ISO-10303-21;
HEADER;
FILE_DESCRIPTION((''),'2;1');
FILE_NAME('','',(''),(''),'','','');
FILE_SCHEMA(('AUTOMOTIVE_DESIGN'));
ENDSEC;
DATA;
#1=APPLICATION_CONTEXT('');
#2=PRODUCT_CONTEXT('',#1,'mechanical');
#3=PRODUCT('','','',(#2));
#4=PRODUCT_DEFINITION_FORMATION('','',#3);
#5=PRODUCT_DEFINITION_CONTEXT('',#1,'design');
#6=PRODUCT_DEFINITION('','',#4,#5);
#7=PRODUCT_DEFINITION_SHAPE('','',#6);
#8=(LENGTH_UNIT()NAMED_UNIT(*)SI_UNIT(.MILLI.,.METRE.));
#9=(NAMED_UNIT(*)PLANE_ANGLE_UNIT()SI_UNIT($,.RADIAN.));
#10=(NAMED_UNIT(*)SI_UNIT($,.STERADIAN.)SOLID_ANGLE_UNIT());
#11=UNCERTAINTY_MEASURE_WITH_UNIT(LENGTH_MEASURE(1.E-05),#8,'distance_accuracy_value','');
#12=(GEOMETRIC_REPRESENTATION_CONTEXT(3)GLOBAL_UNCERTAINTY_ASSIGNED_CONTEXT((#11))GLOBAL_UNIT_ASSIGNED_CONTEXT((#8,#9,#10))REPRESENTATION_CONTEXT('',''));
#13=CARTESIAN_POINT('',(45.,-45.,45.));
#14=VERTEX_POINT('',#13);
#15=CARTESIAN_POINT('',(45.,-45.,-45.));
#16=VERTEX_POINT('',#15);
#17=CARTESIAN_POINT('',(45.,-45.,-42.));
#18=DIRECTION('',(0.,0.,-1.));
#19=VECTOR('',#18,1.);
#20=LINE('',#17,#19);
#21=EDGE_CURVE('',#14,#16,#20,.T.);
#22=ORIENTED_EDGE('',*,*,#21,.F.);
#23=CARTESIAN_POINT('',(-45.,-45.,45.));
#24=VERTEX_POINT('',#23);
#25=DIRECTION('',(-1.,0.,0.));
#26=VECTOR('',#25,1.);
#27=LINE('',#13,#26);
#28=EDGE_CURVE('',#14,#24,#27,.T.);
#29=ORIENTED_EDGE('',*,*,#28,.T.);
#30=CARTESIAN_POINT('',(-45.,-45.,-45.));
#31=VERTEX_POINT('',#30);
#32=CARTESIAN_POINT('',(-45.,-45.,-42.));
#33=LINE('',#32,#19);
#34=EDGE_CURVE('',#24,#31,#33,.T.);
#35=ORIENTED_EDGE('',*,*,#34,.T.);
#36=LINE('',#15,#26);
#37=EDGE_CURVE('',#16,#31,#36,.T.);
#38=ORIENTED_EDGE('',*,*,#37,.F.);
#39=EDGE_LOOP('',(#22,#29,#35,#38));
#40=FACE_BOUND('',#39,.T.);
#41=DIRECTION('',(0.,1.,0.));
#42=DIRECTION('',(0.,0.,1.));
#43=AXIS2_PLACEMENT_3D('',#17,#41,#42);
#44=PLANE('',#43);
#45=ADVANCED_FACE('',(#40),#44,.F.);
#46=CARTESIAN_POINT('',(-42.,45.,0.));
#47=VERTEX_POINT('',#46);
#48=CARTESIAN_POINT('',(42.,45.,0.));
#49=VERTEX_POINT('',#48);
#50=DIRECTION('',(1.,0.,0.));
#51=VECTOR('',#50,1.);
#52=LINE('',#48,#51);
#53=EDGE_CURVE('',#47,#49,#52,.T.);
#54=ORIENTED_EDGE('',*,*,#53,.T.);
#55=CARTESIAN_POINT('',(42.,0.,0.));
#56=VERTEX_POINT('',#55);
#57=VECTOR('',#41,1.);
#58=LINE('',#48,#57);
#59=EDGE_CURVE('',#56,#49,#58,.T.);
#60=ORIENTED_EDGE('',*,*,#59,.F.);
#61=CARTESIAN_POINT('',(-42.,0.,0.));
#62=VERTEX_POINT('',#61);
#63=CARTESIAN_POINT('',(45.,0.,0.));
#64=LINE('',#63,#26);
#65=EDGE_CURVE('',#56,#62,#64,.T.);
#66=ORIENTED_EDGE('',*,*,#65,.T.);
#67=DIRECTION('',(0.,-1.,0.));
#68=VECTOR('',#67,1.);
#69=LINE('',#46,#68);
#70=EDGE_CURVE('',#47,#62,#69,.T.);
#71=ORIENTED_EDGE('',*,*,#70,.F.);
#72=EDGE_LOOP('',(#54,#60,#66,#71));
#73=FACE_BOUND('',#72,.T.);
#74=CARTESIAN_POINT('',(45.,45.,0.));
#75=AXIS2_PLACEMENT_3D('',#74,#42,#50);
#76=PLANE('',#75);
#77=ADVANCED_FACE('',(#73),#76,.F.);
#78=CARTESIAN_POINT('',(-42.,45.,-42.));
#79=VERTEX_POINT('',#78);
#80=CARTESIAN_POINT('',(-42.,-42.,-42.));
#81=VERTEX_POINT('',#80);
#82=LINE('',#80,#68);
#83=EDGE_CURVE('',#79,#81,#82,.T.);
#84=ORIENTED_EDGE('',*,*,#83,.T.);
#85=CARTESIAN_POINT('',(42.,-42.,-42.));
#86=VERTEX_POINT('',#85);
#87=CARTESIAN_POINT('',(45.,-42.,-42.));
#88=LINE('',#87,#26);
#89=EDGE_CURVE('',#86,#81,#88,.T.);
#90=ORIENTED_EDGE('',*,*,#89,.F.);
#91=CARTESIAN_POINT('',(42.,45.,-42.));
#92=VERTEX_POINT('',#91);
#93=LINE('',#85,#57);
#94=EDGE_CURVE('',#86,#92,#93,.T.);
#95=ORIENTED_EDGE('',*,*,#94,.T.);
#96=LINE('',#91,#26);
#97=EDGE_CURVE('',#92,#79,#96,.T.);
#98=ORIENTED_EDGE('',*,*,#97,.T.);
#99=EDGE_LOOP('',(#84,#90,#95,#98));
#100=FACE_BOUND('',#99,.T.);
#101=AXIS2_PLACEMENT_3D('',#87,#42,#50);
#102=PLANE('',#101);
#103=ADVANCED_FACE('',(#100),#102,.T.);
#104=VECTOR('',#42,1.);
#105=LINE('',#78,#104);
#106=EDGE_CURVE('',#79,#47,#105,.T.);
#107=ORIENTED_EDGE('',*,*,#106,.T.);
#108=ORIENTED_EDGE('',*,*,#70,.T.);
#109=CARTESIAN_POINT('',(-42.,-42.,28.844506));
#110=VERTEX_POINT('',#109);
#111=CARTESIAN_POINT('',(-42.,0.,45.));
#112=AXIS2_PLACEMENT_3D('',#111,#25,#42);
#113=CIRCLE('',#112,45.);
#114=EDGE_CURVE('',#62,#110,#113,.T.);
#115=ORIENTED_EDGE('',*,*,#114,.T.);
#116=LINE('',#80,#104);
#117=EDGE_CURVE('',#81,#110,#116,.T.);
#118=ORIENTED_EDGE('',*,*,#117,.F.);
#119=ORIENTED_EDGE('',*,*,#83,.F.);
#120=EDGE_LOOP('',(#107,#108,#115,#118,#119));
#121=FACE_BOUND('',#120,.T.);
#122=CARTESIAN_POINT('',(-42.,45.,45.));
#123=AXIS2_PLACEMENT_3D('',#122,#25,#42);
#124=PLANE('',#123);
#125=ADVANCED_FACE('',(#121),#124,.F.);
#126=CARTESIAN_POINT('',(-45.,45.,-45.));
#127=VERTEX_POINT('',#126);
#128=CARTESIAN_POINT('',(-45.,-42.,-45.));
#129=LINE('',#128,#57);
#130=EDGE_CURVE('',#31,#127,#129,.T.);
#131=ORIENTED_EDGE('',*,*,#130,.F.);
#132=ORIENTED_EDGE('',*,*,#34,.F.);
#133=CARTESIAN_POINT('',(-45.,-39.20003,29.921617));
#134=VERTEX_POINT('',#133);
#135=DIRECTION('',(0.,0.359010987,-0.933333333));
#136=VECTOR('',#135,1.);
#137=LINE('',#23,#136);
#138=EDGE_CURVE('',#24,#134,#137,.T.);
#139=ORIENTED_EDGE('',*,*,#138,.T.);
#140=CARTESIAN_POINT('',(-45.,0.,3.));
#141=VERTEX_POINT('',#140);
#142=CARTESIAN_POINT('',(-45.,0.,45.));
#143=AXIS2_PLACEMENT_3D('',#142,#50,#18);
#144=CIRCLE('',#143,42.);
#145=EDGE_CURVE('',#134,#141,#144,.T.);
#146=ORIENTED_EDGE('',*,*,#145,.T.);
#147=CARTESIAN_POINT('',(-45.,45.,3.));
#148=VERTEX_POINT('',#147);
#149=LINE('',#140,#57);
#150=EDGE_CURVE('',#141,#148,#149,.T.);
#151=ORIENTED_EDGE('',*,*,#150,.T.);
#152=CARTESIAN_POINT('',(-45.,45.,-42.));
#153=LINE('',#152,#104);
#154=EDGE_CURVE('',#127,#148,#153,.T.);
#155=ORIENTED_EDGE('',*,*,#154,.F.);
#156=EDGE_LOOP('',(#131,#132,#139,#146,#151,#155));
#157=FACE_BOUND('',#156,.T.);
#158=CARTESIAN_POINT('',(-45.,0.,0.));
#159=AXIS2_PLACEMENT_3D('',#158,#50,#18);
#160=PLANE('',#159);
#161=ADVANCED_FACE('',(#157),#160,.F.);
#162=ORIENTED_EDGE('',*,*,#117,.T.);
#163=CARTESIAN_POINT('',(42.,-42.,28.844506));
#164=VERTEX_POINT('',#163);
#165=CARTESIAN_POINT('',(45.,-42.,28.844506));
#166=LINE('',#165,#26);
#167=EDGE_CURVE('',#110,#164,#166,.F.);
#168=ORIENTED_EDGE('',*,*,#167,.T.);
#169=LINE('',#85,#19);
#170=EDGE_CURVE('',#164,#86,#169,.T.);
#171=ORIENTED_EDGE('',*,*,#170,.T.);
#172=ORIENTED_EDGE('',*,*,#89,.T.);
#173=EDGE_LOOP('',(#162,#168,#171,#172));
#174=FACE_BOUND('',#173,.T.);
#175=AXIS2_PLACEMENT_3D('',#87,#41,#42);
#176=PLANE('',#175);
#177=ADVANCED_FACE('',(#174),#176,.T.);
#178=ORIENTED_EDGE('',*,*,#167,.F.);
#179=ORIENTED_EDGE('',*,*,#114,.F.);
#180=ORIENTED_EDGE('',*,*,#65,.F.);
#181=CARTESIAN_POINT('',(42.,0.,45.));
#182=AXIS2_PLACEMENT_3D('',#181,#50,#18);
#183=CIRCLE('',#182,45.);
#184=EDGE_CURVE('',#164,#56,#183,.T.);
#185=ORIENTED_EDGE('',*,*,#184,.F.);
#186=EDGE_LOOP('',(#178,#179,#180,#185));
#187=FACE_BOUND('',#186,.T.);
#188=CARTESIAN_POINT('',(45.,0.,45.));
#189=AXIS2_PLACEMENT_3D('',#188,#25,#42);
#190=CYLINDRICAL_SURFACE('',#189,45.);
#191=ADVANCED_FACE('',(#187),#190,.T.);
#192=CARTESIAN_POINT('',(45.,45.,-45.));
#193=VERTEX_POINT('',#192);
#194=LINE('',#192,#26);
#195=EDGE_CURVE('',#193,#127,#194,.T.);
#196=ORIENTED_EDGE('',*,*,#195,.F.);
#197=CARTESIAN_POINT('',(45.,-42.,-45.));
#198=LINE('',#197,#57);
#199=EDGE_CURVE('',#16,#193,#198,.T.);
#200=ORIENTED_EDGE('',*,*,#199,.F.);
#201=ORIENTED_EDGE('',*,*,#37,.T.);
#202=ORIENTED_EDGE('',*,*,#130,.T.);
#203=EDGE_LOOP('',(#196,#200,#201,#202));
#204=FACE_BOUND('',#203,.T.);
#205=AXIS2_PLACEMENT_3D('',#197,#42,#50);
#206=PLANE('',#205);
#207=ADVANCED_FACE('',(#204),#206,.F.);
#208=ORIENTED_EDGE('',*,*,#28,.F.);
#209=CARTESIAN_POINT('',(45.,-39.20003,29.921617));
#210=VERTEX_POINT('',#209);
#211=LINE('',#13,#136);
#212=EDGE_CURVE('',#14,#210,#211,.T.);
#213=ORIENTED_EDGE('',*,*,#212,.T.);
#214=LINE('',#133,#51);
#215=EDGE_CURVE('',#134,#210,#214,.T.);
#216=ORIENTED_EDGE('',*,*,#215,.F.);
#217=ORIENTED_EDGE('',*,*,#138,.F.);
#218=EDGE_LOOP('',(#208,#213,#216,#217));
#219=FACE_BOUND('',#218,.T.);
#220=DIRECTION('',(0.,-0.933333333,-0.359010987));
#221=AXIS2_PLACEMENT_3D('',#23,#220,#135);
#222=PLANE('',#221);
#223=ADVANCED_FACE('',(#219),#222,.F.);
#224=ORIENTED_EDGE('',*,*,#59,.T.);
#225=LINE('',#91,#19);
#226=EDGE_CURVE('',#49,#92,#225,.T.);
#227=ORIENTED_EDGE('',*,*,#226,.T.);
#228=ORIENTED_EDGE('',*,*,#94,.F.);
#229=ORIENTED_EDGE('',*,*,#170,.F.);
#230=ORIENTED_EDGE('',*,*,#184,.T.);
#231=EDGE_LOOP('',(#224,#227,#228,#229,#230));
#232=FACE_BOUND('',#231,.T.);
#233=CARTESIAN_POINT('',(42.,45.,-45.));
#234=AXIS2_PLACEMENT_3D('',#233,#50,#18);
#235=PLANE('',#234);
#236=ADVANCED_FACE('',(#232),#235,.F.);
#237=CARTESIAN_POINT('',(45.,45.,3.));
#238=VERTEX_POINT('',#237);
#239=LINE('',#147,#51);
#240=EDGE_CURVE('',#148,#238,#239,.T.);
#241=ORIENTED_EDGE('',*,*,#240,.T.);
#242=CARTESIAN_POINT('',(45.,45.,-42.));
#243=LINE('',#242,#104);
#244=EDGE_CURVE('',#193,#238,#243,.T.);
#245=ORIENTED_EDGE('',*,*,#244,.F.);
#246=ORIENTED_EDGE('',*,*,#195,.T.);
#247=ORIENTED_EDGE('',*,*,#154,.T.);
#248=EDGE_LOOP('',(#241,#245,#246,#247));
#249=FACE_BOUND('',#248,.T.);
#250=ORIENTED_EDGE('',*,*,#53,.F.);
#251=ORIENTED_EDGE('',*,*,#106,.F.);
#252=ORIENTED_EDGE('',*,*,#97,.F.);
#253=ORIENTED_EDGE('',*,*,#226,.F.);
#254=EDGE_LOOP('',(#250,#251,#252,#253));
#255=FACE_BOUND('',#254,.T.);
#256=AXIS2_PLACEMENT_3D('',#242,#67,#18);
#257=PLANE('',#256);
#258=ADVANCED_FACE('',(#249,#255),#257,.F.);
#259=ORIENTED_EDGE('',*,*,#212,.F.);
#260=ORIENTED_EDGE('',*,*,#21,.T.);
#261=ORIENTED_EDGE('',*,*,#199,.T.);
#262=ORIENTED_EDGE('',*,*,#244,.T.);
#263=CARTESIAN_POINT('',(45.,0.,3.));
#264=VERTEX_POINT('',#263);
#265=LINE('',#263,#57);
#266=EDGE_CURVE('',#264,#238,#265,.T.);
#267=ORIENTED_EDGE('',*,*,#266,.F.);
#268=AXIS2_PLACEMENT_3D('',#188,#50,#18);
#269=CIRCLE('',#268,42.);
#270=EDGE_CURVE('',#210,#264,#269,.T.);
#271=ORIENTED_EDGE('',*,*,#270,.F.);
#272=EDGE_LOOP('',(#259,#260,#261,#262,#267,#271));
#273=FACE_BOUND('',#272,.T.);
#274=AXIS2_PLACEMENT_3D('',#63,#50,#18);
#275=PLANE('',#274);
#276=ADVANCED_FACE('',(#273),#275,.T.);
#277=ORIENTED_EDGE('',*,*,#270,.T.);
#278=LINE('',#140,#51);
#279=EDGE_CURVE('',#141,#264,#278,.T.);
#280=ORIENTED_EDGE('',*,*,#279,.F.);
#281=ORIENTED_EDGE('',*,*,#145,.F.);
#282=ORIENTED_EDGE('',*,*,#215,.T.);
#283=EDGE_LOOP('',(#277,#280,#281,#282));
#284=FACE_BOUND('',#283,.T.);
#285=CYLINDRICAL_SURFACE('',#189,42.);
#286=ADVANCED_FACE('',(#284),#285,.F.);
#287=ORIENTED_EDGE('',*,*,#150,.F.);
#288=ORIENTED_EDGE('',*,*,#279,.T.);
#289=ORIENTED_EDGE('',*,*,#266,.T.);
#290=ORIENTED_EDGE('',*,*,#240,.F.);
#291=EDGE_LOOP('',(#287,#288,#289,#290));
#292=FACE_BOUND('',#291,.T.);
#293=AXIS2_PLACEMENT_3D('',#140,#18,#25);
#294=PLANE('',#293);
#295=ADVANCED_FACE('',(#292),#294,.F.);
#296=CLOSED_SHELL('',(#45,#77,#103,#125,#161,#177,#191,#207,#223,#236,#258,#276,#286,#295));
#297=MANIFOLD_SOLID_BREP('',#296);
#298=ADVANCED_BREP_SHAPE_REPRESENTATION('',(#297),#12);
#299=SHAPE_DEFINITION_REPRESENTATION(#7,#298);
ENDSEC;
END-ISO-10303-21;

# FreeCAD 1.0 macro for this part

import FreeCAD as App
import Part
import Sketcher

V = App.Vector
Q = App.Units.Quantity


def add_polygon(sketch, points):
    """Adds a closed chain of lines whose ends are joined by coincident constraints."""
    first, n = sketch.GeometryCount, len(points)
    for a, b in zip(points, points[1:] + points[:1]):
        sketch.addGeometry(Part.LineSegment(App.Vector(*a, 0), App.Vector(*b, 0)), False)
    for i in range(n):
        sketch.addConstraint(Sketcher.Constraint("Coincident", first + i, 2, first + (i + 1) % n, 1))

doc = App.newDocument("Part")
body = doc.addObject("PartDesign::Body", "Body")

# Sketch on YZ plane
sketch1 = doc.addObject("Sketcher::SketchObject", "Sketch")
body.addObject(sketch1)
sketch1.AttachmentSupport = (doc.YZ_Plane, [""])
sketch1.MapMode = "FlatFace"
add_polygon(sketch1, [(45, 45), (-45, 45), (-45, -45), (45, -45)])  # lines 0-3
add_polygon(sketch1, [(-42, -42), (-42, 42), (42, 42), (42, -42)])  # lines 4-7
sketch1.addConstraint(Sketcher.Constraint("Horizontal", 0))
sketch1.addConstraint(Sketcher.Constraint("Vertical", 1))
sketch1.addConstraint(Sketcher.Constraint("Horizontal", 2))
sketch1.addConstraint(Sketcher.Constraint("Vertical", 3))
sketch1.addConstraint(Sketcher.Constraint("Vertical", 4))
sketch1.addConstraint(Sketcher.Constraint("Horizontal", 5))
sketch1.addConstraint(Sketcher.Constraint("Vertical", 6))
sketch1.addConstraint(Sketcher.Constraint("Horizontal", 7))
sketch1.addConstraint(Sketcher.Constraint("Symmetric", 0, 2, 2, 2, -1, 1))
sketch1.addConstraint(Sketcher.Constraint("Symmetric", 4, 2, 6, 2, -1, 1))
sketch1.addConstraint(Sketcher.Constraint("Equal", 2, 1))
sketch1.addConstraint(Sketcher.Constraint("Equal", 7, 4))
sketch1.addConstraint(Sketcher.Constraint("DistanceX", 0, 2, 0, 1, Q("90 mm")))
sketch1.addConstraint(Sketcher.Constraint("DistanceX", 5, 1, 5, 2, Q("84 mm")))
pad1 = doc.addObject("PartDesign::Pad", "Pad")
body.addObject(pad1)
pad1.Profile = sketch1
pad1.Length = 90
pad1.Midplane = True

# Sketch on YZ plane
sketch2 = doc.addObject("Sketcher::SketchObject", "Sketch001")
body.addObject(sketch2)
sketch2.AttachmentSupport = (doc.YZ_Plane, [""])
sketch2.MapMode = "FlatFace"
add_polygon(sketch2, [(42, 45), (-42, 45), (-42, 42), (42, 42)])  # lines 0-3
sketch2.addConstraint(Sketcher.Constraint("Horizontal", 0))
sketch2.addConstraint(Sketcher.Constraint("Vertical", 1))
sketch2.addConstraint(Sketcher.Constraint("Horizontal", 2))
sketch2.addConstraint(Sketcher.Constraint("Vertical", 3))
sketch2.addConstraint(Sketcher.Constraint("DistanceX", 0, 2, 0, 1, Q("84 mm")))
sketch2.addConstraint(Sketcher.Constraint("DistanceY", 1, 2, 1, 1, Q("3 mm")))
sketch2.addConstraint(Sketcher.Constraint("DistanceX", 0, 2, -1, 1, Q("42 mm")))
sketch2.addConstraint(Sketcher.Constraint("DistanceY", -1, 1, 0, 2, Q("45 mm")))
pocket1 = doc.addObject("PartDesign::Pocket", "Pocket")
body.addObject(pocket1)
pocket1.Profile = sketch2
pocket1.Type = "ThroughAll"
pocket1.Midplane = True

# Sketch on YZ plane
sketch3 = doc.addObject("Sketcher::SketchObject", "Sketch002")
body.addObject(sketch3)
sketch3.AttachmentSupport = (doc.YZ_Plane, [""])
sketch3.MapMode = "FlatFace"
sketch3.addGeometry(Part.Circle(V(0, 45, 0), V(0, 0, 1), 45), False)
sketch3.addGeometry(Part.Circle(V(0, 45, 0), V(0, 0, 1), 42), False)
sketch3.addConstraint(Sketcher.Constraint("Coincident", 1, 3, 0, 3))
sketch3.addConstraint(Sketcher.Constraint("PointOnObject", 0, 3, -2))
sketch3.addConstraint(Sketcher.Constraint("Diameter", 0, Q("90 mm")))
sketch3.addConstraint(Sketcher.Constraint("Diameter", 1, Q("84 mm")))
sketch3.addConstraint(Sketcher.Constraint("DistanceY", -1, 1, 0, 3, Q("45 mm")))
pad2 = doc.addObject("PartDesign::Pad", "Pad001")
body.addObject(pad2)
pad2.Profile = sketch3
pad2.Length = 90
pad2.Midplane = True

# Sketch on YZ plane
sketch4 = doc.addObject("Sketcher::SketchObject", "Sketch003")
body.addObject(sketch4)
sketch4.AttachmentSupport = (doc.YZ_Plane, [""])
sketch4.MapMode = "FlatFace"
add_polygon(sketch4, [(-45, 45), (-39, 30), (0, 3), (45, 3), (45, 95), (-45, 95)])  # lines 0-5
sketch4.addConstraint(Sketcher.Constraint("Horizontal", 2))
sketch4.addConstraint(Sketcher.Constraint("Vertical", 3))
sketch4.addConstraint(Sketcher.Constraint("Horizontal", 4))
sketch4.addConstraint(Sketcher.Constraint("Vertical", 5))
sketch4.addConstraint(Sketcher.Constraint("PointOnObject", 1, 2, -2))
sketch4.addConstraint(Sketcher.Constraint("DistanceX", 2, 1, 2, 2, Q("45 mm")))
sketch4.addConstraint(Sketcher.Constraint("DistanceX", 4, 2, 4, 1, Q("90 mm")))
sketch4.addConstraint(Sketcher.Constraint("DistanceY", -1, 1, 1, 2, Q("3 mm")))
sketch4.addConstraint(Sketcher.Constraint("DistanceY", -1, 1, 5, 2, Q("45 mm")))
sketch4.addConstraint(Sketcher.Constraint("DistanceY", 3, 1, 3, 2, Q("92.37169 mm")))
sketch4.addConstraint(Sketcher.Constraint("Distance", 0, Q("16.155411 mm")))
sketch4.addConstraint(Sketcher.Constraint("DistanceX", 0, 2, -1, 1, Q("39.20003 mm")))
pocket2 = doc.addObject("PartDesign::Pocket", "Pocket001")
body.addObject(pocket2)
pocket2.Profile = sketch4
pocket2.Type = "ThroughAll"
pocket2.Midplane = True

# Sketch on YZ plane
sketch5 = doc.addObject("Sketcher::SketchObject", "Sketch004")
body.addObject(sketch5)
sketch5.AttachmentSupport = (doc.YZ_Plane, [""])
sketch5.MapMode = "FlatFace"
add_polygon(sketch5, [(45, 3), (0, 3), (0, 0), (45, 0)])  # lines 0-3
sketch5.addConstraint(Sketcher.Constraint("Horizontal", 0))
sketch5.addConstraint(Sketcher.Constraint("Vertical", 1))
sketch5.addConstraint(Sketcher.Constraint("Horizontal", 2))
sketch5.addConstraint(Sketcher.Constraint("Vertical", 3))
sketch5.addConstraint(Sketcher.Constraint("Coincident", 1, 2, -1, 1))
sketch5.addConstraint(Sketcher.Constraint("DistanceX", 0, 2, 0, 1, Q("45 mm")))
sketch5.addConstraint(Sketcher.Constraint("DistanceY", 1, 2, 1, 1, Q("3 mm")))
pad3 = doc.addObject("PartDesign::Pad", "Pad002")
body.addObject(pad3)
pad3.Profile = sketch5
pad3.Length = 90
pad3.Midplane = True

# Sketch on XZ plane
sketch6 = doc.addObject("Sketcher::SketchObject", "Sketch005")
body.addObject(sketch6)
sketch6.AttachmentSupport = (doc.XZ_Plane, [""])
sketch6.MapMode = "FlatFace"
add_polygon(sketch6, [(-45, -45), (-45, 45), (-42, 45), (-42, -45)])  # lines 0-3
sketch6.addConstraint(Sketcher.Constraint("Vertical", 0))
sketch6.addConstraint(Sketcher.Constraint("Horizontal", 1))
sketch6.addConstraint(Sketcher.Constraint("Vertical", 2))
sketch6.addConstraint(Sketcher.Constraint("Horizontal", 3))
sketch6.addConstraint(Sketcher.Constraint("DistanceX", 1, 1, 1, 2, Q("3 mm")))
sketch6.addConstraint(Sketcher.Constraint("DistanceY", 0, 1, 0, 2, Q("90 mm")))
sketch6.addConstraint(Sketcher.Constraint("DistanceX", 0, 2, -1, 1, Q("45 mm")))
sketch6.addConstraint(Sketcher.Constraint("DistanceY", -1, 1, 0, 2, Q("45 mm")))
pad4 = doc.addObject("PartDesign::Pad", "Pad003")
body.addObject(pad4)
pad4.Profile = sketch6
pad4.Length = 90
pad4.Midplane = True

# Sketch on XZ plane
sketch7 = doc.addObject("Sketcher::SketchObject", "Sketch006")
body.addObject(sketch7)
sketch7.AttachmentSupport = (doc.XZ_Plane, [""])
sketch7.MapMode = "FlatFace"
add_polygon(sketch7, [(42, -45), (42, 45), (45, 45), (45, -45)])  # lines 0-3
sketch7.addConstraint(Sketcher.Constraint("Vertical", 0))
sketch7.addConstraint(Sketcher.Constraint("Horizontal", 1))
sketch7.addConstraint(Sketcher.Constraint("Vertical", 2))
sketch7.addConstraint(Sketcher.Constraint("Horizontal", 3))
sketch7.addConstraint(Sketcher.Constraint("DistanceX", 1, 1, 1, 2, Q("3 mm")))
sketch7.addConstraint(Sketcher.Constraint("DistanceY", 0, 1, 0, 2, Q("90 mm")))
sketch7.addConstraint(Sketcher.Constraint("DistanceX", -1, 1, 0, 2, Q("42 mm")))
sketch7.addConstraint(Sketcher.Constraint("DistanceY", -1, 1, 0, 2, Q("45 mm")))
pad5 = doc.addObject("PartDesign::Pad", "Pad004")
body.addObject(pad5)
pad5.Profile = sketch7
pad5.Length = 90
pad5.Midplane = True

# Sketch on YZ plane
sketch8 = doc.addObject("Sketcher::SketchObject", "Sketch007")
body.addObject(sketch8)
sketch8.AttachmentSupport = (doc.YZ_Plane, [""])
sketch8.MapMode = "FlatFace"
add_polygon(sketch8, [(0, 3), (45, 3), (45, 45), (-45, 45)])  # lines 0-3
sketch8.addConstraint(Sketcher.Constraint("Horizontal", 0))
sketch8.addConstraint(Sketcher.Constraint("Vertical", 1))
sketch8.addConstraint(Sketcher.Constraint("Horizontal", 2))
sketch8.addConstraint(Sketcher.Constraint("PointOnObject", 3, 2, -2))
sketch8.addConstraint(Sketcher.Constraint("DistanceX", 0, 1, 0, 2, Q("45 mm")))
sketch8.addConstraint(Sketcher.Constraint("DistanceX", 2, 2, 2, 1, Q("90 mm")))
sketch8.addConstraint(Sketcher.Constraint("DistanceY", 1, 1, 1, 2, Q("42 mm")))
sketch8.addConstraint(Sketcher.Constraint("DistanceY", -1, 1, 0, 2, Q("3 mm")))
pocket3 = doc.addObject("PartDesign::Pocket", "Pocket002")
body.addObject(pocket3)
pocket3.Profile = sketch8
pocket3.Type = "ThroughAll"
pocket3.Midplane = True

# Sketch on YZ plane
sketch9 = doc.addObject("Sketcher::SketchObject", "Sketch008")
body.addObject(sketch9)
sketch9.AttachmentSupport = (doc.YZ_Plane, [""])
sketch9.MapMode = "FlatFace"
sketch9.addGeometry(Part.Circle(V(0, 45, 0), V(0, 0, 1), 42), False)
sketch9.addConstraint(Sketcher.Constraint("PointOnObject", 0, 3, -2))
sketch9.addConstraint(Sketcher.Constraint("Diameter", 0, Q("84 mm")))
sketch9.addConstraint(Sketcher.Constraint("DistanceY", -1, 1, 0, 3, Q("45 mm")))
pocket4 = doc.addObject("PartDesign::Pocket", "Pocket003")
body.addObject(pocket4)
pocket4.Profile = sketch9
pocket4.Type = "ThroughAll"
pocket4.Midplane = True

# Sketch on YZ plane
sketch10 = doc.addObject("Sketcher::SketchObject", "Sketch009")
body.addObject(sketch10)
sketch10.AttachmentSupport = (doc.YZ_Plane, [""])
sketch10.MapMode = "FlatFace"
add_polygon(sketch10, [(-45, 45), (-39, 30), (1, 46)])  # lines 0-2
sketch10.addConstraint(Sketcher.Constraint("Perpendicular", 0, 1))
sketch10.addConstraint(Sketcher.Constraint("DistanceX", 2, 2, -1, 1, Q("45 mm")))
sketch10.addConstraint(Sketcher.Constraint("DistanceY", -1, 1, 2, 2, Q("45 mm")))
sketch10.addConstraint(Sketcher.Constraint("Distance", 0, Q("16.155411 mm")))
sketch10.addConstraint(Sketcher.Constraint("DistanceX", 0, 2, -1, 1, Q("39.20003 mm")))
sketch10.addConstraint(Sketcher.Constraint("Distance", 1, Q("43.474344 mm")))
pocket5 = doc.addObject("PartDesign::Pocket", "Pocket004")
body.addObject(pocket5)
pocket5.Profile = sketch10
pocket5.Type = "ThroughAll"
pocket5.Midplane = True

# Sketch on XZ plane
sketch11 = doc.addObject("Sketcher::SketchObject", "Sketch010")
body.addObject(sketch11)
sketch11.AttachmentSupport = (doc.XZ_Plane, [""])
sketch11.MapMode = "FlatFace"
add_polygon(sketch11, [(-42, -42), (-42, 0), (42, 0), (42, -42)])  # lines 0-3
sketch11.addConstraint(Sketcher.Constraint("Vertical", 0))
sketch11.addConstraint(Sketcher.Constraint("Horizontal", 1))
sketch11.addConstraint(Sketcher.Constraint("Vertical", 2))
sketch11.addConstraint(Sketcher.Constraint("Horizontal", 3))
sketch11.addConstraint(Sketcher.Constraint("Symmetric", 0, 2, 1, 2, -1, 1))
sketch11.addConstraint(Sketcher.Constraint("DistanceX", 1, 1, 1, 2, Q("84 mm")))
sketch11.addConstraint(Sketcher.Constraint("DistanceY", 0, 1, 0, 2, Q("42 mm")))
pocket6 = doc.addObject("PartDesign::Pocket", "Pocket005")
body.addObject(pocket6)
pocket6.Profile = sketch11
pocket6.Type = "ThroughAll"

doc.recompute()
